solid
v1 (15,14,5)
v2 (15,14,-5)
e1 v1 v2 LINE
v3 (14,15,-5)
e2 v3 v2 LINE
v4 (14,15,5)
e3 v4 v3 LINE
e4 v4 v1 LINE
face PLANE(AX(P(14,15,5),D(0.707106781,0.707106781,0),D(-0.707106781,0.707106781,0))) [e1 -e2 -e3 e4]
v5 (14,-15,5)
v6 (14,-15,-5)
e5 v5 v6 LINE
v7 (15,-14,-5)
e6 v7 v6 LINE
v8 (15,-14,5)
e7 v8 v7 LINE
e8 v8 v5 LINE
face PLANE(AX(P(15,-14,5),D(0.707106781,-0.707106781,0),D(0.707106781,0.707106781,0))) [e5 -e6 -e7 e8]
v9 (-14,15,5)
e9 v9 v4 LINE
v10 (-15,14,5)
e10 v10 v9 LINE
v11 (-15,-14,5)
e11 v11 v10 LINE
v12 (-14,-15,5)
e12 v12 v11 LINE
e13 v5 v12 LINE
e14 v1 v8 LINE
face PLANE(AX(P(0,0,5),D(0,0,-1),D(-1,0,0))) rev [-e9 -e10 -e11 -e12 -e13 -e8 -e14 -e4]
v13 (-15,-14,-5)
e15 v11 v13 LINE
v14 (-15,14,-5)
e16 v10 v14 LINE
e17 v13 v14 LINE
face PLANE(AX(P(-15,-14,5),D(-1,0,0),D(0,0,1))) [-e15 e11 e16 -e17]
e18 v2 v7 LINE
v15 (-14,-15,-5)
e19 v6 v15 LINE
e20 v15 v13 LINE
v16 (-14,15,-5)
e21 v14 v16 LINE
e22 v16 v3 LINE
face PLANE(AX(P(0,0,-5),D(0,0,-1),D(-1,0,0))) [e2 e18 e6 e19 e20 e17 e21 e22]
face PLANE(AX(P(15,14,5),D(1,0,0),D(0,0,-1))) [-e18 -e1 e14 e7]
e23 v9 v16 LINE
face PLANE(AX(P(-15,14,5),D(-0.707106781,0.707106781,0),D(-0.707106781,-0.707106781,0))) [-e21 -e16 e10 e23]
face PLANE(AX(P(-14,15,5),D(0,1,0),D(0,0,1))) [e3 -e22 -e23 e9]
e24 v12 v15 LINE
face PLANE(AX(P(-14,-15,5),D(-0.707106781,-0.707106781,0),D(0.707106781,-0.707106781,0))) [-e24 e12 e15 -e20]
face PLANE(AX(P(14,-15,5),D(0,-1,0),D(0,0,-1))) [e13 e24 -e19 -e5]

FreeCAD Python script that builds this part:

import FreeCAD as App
import Part
import Sketcher

V = App.Vector
Q = App.Units.Quantity


def add_polygon(sketch, points):
    """Adds a closed chain of lines whose ends are joined by coincident constraints."""
    first, n = sketch.GeometryCount, len(points)
    for a, b in zip(points, points[1:] + points[:1]):
        sketch.addGeometry(Part.LineSegment(App.Vector(*a, 0), App.Vector(*b, 0)), False)
    for i in range(n):
        sketch.addConstraint(Sketcher.Constraint("Coincident", first + i, 2, first + (i + 1) % n, 1))

doc = App.newDocument("Part")
params = doc.addObject("Spreadsheet::Sheet", "Params")
for row, (alias, value) in enumerate([
    ("sketch1_width", "28 mm"),
    ("pad1_length", "10 mm"),
], start=1):
    params.set(f"A{row}", alias)
    params.set(f"B{row}", "=" + value)
    params.setAlias(f"B{row}", alias)

body = doc.addObject("PartDesign::Body", "Body")

sketch1 = body.newObject("Sketcher::SketchObject", "Sketch")
sketch1.AttachmentSupport = (doc.getObject("XY_Plane"), [""])
sketch1.MapMode = "FlatFace"
sketch1.AttachmentOffset = App.Placement(V(0, 0, -5), App.Rotation())
add_polygon(sketch1, [(15, -14), (14, -15), (-14, -15), (-15, -14), (-15, 14), (-14, 15), (14, 15), (15, 14)])
sketch1.addConstraint([
    Sketcher.Constraint("Horizontal", 1),
    Sketcher.Constraint("Vertical", 3),
    Sketcher.Constraint("Horizontal", 5),
    Sketcher.Constraint("Vertical", 7),
    Sketcher.Constraint("Symmetric", 0, 2, 4, 2, -1, 1),
    Sketcher.Constraint("Symmetric", 2, 2, 6, 2, -1, 1),
    Sketcher.Constraint("Perpendicular", 0, 2),
    Sketcher.Constraint("Perpendicular", 2, 4),
    Sketcher.Constraint("Perpendicular", 4, 6),
    Sketcher.Constraint("Horizontal", 3, 2, 6, 2),
    Sketcher.Constraint("Vertical", 1, 2, 4, 2),
    Sketcher.Constraint("Equal", 5, 3),
    Sketcher.Constraint("DistanceX", 1, 2, 1, 1, Q("28 mm")),
    Sketcher.Constraint("DistanceY", 0, 2, -1, 1, Q("15 mm")),
])
sketch1.setExpression("Constraints[20]", "Params.sketch1_width")
pad1 = body.newObject("PartDesign::Pad", "Pad")
pad1.Profile = sketch1
pad1.setExpression("Length", "Params.pad1_length")

doc.recompute()
